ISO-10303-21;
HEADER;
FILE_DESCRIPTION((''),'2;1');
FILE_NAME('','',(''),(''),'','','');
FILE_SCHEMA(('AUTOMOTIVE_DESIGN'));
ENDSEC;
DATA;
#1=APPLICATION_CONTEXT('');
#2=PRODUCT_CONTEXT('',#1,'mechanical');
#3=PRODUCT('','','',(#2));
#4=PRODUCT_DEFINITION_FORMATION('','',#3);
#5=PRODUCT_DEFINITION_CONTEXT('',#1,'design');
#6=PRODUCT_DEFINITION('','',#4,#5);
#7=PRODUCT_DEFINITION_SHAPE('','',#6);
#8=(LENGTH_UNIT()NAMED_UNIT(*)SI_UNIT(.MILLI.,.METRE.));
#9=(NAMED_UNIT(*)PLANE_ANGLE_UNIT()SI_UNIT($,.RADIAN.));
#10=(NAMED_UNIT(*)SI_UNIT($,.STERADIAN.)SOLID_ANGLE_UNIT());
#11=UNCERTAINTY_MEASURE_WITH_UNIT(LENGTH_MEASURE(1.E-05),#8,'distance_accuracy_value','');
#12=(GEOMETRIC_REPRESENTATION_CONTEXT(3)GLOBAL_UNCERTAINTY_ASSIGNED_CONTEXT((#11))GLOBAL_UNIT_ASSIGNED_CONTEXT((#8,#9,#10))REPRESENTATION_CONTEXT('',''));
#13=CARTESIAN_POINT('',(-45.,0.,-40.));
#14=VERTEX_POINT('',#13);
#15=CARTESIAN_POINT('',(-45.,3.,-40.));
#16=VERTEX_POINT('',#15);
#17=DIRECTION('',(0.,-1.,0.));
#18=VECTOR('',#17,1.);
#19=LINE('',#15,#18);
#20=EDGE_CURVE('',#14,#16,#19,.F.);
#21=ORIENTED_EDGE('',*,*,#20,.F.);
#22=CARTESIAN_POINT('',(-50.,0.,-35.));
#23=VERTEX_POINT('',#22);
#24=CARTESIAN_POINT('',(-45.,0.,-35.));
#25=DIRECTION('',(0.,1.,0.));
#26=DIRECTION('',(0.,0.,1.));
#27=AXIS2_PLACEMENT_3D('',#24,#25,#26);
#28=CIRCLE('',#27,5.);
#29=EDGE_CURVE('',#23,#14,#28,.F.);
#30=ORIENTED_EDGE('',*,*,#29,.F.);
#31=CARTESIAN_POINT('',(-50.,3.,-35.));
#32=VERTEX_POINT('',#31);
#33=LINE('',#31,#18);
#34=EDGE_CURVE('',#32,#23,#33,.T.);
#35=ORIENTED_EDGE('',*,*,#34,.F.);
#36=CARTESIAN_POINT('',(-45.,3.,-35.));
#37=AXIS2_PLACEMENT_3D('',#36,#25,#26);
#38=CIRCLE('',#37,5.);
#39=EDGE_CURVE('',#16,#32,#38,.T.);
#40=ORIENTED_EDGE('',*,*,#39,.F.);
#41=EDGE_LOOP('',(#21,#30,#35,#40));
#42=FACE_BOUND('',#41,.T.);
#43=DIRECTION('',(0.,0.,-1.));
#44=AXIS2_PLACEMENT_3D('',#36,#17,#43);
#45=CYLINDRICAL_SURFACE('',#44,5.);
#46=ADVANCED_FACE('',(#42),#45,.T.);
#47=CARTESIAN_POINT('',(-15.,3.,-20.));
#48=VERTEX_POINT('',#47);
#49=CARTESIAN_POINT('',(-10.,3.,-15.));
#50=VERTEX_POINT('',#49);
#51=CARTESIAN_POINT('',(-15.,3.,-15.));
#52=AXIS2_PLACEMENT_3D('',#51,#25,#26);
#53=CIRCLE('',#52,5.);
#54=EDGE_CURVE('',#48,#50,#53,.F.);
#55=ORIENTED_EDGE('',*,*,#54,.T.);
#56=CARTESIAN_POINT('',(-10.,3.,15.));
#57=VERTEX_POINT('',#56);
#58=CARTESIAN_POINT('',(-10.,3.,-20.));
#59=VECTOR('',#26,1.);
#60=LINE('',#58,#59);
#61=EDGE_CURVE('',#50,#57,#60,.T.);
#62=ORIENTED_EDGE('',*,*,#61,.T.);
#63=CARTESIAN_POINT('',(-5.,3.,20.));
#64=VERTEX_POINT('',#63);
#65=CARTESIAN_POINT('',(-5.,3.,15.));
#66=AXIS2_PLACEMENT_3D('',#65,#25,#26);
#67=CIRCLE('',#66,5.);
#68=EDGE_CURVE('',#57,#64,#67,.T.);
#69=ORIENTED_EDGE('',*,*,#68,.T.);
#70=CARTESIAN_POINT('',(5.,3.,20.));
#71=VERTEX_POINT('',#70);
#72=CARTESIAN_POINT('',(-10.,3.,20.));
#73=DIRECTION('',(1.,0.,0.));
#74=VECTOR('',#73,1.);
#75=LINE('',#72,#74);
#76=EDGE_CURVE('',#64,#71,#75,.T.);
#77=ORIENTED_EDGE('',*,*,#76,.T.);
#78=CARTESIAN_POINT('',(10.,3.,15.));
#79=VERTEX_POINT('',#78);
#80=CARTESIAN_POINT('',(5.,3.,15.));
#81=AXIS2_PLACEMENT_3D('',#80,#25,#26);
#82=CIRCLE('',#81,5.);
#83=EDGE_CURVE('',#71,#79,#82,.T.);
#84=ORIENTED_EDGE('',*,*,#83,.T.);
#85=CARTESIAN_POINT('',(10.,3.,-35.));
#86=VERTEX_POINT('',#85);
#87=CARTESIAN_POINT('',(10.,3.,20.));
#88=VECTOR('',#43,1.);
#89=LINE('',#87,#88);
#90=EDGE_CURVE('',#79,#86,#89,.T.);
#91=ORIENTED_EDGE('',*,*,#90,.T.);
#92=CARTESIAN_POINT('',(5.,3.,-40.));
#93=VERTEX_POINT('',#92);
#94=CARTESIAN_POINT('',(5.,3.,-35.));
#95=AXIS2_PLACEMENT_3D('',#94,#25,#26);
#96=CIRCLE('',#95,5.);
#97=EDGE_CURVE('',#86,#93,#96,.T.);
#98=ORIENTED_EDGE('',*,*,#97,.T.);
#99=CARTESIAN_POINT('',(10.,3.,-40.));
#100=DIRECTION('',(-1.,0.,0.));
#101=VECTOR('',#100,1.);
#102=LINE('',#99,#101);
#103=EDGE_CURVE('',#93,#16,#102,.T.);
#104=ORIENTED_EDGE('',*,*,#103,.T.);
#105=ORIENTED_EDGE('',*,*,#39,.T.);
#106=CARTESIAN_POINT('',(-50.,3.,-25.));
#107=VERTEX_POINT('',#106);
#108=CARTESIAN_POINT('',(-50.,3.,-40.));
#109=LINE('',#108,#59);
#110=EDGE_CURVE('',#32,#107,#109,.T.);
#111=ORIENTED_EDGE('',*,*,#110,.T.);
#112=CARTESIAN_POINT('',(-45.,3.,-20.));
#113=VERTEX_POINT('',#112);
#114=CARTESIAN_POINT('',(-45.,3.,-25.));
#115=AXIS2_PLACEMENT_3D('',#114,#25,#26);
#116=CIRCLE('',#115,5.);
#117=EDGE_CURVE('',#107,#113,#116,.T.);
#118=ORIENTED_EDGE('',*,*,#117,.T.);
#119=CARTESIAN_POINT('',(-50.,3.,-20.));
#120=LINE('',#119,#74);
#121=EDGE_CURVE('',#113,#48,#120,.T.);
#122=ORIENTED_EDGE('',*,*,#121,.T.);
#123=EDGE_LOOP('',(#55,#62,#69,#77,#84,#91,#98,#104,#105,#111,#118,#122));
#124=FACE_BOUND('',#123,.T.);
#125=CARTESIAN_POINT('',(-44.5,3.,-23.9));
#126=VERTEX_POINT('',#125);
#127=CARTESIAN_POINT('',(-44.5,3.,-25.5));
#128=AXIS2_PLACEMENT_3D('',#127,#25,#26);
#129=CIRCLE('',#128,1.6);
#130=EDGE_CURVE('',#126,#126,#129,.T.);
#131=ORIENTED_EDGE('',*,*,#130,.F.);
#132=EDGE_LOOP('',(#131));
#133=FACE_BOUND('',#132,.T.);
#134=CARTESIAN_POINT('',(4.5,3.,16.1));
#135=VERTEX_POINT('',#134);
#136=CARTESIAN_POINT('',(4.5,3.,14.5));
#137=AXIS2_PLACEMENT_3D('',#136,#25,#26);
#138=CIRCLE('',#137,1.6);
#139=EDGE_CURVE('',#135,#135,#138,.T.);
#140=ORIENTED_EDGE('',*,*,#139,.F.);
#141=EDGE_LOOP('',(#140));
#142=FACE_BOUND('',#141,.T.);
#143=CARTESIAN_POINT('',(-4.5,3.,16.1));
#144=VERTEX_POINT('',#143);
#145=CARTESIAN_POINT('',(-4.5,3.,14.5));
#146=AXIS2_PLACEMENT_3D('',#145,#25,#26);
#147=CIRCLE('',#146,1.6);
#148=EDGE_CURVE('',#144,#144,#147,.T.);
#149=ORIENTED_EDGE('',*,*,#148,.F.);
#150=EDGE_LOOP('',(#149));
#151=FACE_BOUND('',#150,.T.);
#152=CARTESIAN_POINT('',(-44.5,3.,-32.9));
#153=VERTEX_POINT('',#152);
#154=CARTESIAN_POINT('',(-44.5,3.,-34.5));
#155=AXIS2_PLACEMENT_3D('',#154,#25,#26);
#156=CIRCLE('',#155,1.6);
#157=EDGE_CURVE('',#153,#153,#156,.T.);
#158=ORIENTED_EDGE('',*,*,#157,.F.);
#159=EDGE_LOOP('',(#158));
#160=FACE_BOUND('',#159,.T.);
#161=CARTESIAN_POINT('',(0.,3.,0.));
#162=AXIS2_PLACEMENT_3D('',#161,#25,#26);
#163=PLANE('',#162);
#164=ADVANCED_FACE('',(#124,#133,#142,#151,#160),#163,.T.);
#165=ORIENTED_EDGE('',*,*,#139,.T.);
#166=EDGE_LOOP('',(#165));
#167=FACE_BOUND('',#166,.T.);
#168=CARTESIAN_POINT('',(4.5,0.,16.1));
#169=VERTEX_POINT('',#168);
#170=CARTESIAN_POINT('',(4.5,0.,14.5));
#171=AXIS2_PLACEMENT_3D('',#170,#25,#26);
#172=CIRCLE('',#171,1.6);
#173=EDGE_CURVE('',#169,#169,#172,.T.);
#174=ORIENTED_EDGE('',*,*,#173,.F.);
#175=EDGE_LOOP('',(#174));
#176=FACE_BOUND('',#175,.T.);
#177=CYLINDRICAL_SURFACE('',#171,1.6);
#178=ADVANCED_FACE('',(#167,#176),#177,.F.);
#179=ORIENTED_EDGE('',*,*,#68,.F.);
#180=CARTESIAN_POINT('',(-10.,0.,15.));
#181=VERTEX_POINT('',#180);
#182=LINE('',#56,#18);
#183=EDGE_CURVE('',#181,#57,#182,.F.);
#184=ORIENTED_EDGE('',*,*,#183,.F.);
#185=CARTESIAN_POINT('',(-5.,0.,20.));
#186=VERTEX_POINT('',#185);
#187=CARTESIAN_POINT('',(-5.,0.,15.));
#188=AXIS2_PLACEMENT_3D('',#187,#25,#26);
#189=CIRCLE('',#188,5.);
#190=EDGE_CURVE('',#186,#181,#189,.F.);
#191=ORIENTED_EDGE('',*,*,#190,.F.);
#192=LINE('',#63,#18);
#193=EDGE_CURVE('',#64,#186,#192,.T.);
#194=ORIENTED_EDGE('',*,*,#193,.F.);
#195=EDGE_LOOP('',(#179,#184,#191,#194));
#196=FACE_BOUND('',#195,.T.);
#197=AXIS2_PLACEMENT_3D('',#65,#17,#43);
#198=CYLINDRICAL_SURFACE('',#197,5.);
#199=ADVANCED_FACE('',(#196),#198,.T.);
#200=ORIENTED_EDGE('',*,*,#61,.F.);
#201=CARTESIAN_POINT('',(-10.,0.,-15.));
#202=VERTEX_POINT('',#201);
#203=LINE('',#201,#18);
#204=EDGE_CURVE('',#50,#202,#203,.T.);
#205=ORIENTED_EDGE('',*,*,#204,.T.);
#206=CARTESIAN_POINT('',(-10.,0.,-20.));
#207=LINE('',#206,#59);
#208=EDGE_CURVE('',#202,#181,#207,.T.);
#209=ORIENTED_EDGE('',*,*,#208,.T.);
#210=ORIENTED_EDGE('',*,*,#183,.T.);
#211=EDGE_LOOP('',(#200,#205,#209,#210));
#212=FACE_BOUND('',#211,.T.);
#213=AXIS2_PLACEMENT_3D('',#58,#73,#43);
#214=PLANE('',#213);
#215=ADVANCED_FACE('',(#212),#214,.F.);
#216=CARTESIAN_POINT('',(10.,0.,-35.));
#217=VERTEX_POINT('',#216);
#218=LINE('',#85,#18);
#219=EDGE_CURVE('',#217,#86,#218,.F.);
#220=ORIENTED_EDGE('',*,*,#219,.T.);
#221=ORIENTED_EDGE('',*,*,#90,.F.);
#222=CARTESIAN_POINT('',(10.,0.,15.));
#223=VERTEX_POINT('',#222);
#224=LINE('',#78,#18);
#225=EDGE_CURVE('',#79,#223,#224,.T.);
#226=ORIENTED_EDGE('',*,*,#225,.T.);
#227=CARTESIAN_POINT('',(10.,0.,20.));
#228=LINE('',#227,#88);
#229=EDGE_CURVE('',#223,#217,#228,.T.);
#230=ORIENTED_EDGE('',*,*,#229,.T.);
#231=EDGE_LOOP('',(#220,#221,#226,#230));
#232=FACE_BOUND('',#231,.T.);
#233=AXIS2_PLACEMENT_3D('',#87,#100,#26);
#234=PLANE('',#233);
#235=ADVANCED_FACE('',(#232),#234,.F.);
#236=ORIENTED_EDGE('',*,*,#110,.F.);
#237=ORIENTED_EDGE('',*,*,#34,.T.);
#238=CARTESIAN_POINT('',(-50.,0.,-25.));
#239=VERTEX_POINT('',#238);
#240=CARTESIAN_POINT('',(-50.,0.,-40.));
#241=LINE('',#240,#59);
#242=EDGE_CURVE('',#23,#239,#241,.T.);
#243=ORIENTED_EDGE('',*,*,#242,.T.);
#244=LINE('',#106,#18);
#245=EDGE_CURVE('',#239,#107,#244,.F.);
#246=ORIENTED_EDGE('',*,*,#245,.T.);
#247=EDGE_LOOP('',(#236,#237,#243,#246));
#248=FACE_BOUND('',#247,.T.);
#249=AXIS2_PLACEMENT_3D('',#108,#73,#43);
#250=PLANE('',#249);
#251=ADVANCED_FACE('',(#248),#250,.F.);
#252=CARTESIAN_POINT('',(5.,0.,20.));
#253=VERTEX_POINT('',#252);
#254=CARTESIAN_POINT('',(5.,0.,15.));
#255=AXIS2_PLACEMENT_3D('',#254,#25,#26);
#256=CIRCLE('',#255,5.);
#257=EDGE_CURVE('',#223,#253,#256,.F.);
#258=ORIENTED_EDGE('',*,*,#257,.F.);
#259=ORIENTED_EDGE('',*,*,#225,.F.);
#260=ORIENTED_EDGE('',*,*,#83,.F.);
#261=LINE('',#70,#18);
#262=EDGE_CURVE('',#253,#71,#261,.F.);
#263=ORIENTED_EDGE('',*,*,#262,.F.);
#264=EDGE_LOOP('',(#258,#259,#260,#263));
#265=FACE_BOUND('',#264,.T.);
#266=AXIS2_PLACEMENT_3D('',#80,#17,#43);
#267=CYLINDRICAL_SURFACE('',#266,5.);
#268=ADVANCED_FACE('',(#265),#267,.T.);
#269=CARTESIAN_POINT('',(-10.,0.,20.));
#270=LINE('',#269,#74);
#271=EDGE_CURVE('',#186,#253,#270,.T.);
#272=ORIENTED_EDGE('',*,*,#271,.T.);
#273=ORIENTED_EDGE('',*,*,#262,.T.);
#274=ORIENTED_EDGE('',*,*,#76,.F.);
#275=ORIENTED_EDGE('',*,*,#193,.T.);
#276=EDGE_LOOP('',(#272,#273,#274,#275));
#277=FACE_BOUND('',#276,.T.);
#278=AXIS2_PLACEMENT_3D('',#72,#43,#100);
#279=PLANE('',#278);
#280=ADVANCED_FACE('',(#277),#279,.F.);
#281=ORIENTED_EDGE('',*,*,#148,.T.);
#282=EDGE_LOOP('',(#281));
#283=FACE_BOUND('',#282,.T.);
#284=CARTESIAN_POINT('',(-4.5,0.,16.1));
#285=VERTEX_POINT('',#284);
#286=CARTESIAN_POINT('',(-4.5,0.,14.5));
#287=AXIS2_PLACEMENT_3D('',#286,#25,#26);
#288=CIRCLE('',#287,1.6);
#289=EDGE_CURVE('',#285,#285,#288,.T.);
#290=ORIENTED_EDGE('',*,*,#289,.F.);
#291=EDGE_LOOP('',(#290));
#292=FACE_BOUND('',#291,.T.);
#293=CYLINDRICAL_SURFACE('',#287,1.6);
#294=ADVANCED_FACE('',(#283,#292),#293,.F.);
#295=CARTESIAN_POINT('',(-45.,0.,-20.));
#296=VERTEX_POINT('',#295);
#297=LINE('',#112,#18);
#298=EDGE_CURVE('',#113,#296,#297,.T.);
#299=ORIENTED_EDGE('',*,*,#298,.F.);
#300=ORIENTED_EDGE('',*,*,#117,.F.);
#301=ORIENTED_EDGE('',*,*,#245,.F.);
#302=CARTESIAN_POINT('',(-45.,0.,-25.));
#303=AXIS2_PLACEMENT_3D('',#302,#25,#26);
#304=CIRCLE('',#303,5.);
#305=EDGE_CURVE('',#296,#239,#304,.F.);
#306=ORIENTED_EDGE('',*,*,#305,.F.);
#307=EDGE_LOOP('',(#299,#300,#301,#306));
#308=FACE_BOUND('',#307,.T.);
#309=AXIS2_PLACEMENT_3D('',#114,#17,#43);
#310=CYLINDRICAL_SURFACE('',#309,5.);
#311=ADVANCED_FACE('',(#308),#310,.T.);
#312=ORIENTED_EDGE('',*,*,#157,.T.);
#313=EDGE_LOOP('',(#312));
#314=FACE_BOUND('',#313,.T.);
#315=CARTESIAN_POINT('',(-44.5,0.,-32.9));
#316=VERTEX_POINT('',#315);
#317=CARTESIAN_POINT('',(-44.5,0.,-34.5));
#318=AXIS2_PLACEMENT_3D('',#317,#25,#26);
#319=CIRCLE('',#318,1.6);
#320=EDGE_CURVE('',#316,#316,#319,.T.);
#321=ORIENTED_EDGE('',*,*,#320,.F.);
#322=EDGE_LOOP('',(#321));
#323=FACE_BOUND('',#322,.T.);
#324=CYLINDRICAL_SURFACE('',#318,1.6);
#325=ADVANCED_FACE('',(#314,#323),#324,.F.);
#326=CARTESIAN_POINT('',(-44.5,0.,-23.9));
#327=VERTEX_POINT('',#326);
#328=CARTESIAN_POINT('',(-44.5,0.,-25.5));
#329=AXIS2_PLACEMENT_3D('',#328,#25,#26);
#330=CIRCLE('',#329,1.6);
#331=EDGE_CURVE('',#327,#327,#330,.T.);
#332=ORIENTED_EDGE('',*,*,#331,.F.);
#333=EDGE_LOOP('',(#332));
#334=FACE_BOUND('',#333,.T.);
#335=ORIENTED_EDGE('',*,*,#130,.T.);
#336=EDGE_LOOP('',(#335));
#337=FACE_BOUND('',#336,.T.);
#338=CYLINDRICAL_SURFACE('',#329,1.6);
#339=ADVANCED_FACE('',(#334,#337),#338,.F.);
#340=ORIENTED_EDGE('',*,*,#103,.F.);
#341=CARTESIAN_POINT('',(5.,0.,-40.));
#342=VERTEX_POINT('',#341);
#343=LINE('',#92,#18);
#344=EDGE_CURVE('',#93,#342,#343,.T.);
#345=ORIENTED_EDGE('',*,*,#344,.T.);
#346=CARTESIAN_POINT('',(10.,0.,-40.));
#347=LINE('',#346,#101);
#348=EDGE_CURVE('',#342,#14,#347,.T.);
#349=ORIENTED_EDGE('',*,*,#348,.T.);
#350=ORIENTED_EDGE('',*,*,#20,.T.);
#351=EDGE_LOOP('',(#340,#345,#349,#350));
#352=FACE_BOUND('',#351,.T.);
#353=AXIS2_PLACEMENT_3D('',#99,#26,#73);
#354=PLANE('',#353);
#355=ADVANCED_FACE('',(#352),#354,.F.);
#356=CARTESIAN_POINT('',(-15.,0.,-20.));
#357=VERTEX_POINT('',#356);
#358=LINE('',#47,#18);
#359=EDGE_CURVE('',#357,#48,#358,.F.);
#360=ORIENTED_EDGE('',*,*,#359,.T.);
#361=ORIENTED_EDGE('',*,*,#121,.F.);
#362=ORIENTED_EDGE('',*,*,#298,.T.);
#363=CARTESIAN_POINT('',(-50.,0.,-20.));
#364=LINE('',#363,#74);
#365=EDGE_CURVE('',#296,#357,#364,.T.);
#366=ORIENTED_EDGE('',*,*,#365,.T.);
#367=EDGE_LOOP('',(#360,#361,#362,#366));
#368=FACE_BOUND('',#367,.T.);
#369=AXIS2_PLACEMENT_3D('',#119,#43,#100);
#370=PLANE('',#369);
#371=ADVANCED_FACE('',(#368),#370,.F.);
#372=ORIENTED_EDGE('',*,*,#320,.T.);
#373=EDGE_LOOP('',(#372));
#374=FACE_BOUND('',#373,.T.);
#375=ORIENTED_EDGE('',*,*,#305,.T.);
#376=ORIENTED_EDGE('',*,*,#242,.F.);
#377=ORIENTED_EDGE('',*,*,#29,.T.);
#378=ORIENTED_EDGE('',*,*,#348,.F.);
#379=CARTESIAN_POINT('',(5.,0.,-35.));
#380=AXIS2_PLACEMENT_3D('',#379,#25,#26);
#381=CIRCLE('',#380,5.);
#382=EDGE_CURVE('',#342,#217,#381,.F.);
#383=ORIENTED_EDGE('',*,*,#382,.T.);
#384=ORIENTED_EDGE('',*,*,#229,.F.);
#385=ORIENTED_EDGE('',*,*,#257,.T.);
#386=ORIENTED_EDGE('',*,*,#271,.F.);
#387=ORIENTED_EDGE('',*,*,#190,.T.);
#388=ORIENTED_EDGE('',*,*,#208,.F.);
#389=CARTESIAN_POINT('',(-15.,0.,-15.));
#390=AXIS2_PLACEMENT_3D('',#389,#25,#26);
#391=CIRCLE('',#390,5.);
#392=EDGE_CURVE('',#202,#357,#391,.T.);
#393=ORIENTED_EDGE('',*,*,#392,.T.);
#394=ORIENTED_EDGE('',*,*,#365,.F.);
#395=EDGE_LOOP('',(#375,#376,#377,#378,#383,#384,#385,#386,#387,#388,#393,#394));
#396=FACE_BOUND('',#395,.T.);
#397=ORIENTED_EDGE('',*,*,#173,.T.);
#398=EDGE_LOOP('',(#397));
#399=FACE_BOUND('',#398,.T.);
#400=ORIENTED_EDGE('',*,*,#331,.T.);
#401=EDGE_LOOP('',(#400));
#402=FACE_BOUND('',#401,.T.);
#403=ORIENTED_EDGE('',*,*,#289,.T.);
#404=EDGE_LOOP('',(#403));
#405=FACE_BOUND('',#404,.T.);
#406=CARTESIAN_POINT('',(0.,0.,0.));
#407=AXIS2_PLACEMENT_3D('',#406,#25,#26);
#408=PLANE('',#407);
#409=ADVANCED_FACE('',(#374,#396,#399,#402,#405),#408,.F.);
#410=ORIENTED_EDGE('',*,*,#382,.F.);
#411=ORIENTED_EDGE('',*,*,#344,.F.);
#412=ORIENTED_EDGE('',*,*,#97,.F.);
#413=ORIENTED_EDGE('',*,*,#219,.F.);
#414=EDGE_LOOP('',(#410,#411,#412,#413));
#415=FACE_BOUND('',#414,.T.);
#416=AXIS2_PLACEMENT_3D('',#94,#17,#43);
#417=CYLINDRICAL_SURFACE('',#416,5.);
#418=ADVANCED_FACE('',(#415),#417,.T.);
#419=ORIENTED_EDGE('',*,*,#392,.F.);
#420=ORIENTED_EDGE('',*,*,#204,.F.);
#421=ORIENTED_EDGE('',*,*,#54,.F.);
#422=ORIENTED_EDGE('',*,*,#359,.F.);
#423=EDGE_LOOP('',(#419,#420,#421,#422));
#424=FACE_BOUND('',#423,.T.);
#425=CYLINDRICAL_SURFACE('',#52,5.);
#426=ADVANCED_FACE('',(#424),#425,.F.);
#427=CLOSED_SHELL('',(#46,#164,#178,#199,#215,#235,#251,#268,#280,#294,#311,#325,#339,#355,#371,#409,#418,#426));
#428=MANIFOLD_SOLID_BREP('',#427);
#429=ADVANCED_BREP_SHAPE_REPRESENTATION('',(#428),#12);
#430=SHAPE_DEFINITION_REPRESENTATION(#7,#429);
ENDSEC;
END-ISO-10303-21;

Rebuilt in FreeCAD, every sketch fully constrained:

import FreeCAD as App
import Part
import Sketcher
from FreeCAD import Vector
Q = App.Units.Quantity


def edges_at(feature, points):
    """Names of the edges that pass closest to the given points."""
    edges = feature.Shape.Edges
    near = lambda p: min(range(len(edges)), key=lambda i: edges[i].distToShape(Part.Vertex(*p))[0])
    return sorted({f"Edge{near(p) + 1}" for p in points})


def add_polygon(sketch, points):
    """Adds a closed chain of lines whose ends are joined by coincident constraints."""
    first, n = sketch.GeometryCount, len(points)
    for a, b in zip(points, points[1:] + points[:1]):
        sketch.addGeometry(Part.LineSegment(App.Vector(*a, 0), App.Vector(*b, 0)), False)
    for i in range(n):
        sketch.addConstraint(Sketcher.Constraint("Coincident", first + i, 2, first + (i + 1) % n, 1))

doc = App.newDocument("Part")
body = doc.addObject("PartDesign::Body", "Body")

sketch1 = body.newObject("Sketcher::SketchObject", "Sketch")
sketch1.AttachmentSupport = (doc.getObject("XZ_Plane"), [""])
sketch1.MapMode = "FlatFace"
add_polygon(sketch1, [(-50, -40), (-50, -20), (-10, -20), (-10, 20), (10, 20), (10, -40)])
sketch1.addConstraint([
    Sketcher.Constraint("Vertical", 0),
    Sketcher.Constraint("Horizontal", 1),
    Sketcher.Constraint("Vertical", 2),
    Sketcher.Constraint("Horizontal", 3),
    Sketcher.Constraint("Vertical", 4),
    Sketcher.Constraint("Horizontal", 5),
    Sketcher.Constraint("Symmetric", 1, 2, 3, 2, -1, 1),
    Sketcher.Constraint("Equal", 3, 0),
    Sketcher.Constraint("Equal", 1, 2),
    Sketcher.Constraint("DistanceX", 1, 1, 1, 2, Q("40 mm")),
    Sketcher.Constraint("DistanceX", 3, 1, 3, 2, Q("20 mm")),
])
pad1 = body.newObject("PartDesign::Pad", "Pad")
pad1.Profile = sketch1
pad1.Length = 3
pad1.Reversed = True

sketch2 = body.newObject("Sketcher::SketchObject", "Sketch001")
sketch2.AttachmentSupport = (doc.getObject("XZ_Plane"), [""])
sketch2.MapMode = "FlatFace"
sketch2.AttachmentOffset = App.Placement(Vector(0, 0, -3), App.Rotation())
sketch2.addGeometry([
    Part.Circle(Vector(-44.5, -34.5, 0), Vector(0, 0, 1), 1.6),
    Part.Circle(Vector(-44.5, -25.5, 0), Vector(0, 0, 1), 1.6),
    Part.Circle(Vector(-4.5, 14.5, 0), Vector(0, 0, 1), 1.6),
    Part.Circle(Vector(4.5, 14.5, 0), Vector(0, 0, 1), 1.6),
], False)
sketch2.addConstraint([
    Sketcher.Constraint("Equal", 0, 1),
    Sketcher.Constraint("Equal", 1, 2),
    Sketcher.Constraint("Equal", 2, 3),
    Sketcher.Constraint("Symmetric", 2, 3, 3, 3, -2),
    Sketcher.Constraint("Vertical", 0, 3, 1, 3),
    Sketcher.Constraint("Diameter", 0, Q("3.2 mm")),
    Sketcher.Constraint("DistanceY", 0, 3, 1, 3, Q("9 mm")),
    Sketcher.Constraint("DistanceX", 1, 3, 2, 3, Q("40 mm")),
    Sketcher.Constraint("DistanceY", 1, 3, 2, 3, Q("40 mm")),
    Sketcher.Constraint("DistanceX", 2, 3, 3, 3, Q("9 mm")),
    Sketcher.Constraint("DistanceY", 0, 3, -1, 1, Q("34.5 mm")),
])
pocket1 = body.newObject("PartDesign::Pocket", "Pocket")
pocket1.Profile = sketch2
pocket1.Type = "ThroughAll"
pocket1.Reversed = True
doc.recompute()

fillet = body.newObject("PartDesign::Fillet", "Fillet")
fillet.Base = (pocket1, edges_at(pocket1, [
    (10, 1.5, 20),
    (-10, 1.5, 20),
    (-10, 1.5, -20),
    (-50, 1.5, -20),
    (-50, 1.5, -40),
    (10, 1.5, -40),
]))
fillet.Radius = 5

doc.recompute()
